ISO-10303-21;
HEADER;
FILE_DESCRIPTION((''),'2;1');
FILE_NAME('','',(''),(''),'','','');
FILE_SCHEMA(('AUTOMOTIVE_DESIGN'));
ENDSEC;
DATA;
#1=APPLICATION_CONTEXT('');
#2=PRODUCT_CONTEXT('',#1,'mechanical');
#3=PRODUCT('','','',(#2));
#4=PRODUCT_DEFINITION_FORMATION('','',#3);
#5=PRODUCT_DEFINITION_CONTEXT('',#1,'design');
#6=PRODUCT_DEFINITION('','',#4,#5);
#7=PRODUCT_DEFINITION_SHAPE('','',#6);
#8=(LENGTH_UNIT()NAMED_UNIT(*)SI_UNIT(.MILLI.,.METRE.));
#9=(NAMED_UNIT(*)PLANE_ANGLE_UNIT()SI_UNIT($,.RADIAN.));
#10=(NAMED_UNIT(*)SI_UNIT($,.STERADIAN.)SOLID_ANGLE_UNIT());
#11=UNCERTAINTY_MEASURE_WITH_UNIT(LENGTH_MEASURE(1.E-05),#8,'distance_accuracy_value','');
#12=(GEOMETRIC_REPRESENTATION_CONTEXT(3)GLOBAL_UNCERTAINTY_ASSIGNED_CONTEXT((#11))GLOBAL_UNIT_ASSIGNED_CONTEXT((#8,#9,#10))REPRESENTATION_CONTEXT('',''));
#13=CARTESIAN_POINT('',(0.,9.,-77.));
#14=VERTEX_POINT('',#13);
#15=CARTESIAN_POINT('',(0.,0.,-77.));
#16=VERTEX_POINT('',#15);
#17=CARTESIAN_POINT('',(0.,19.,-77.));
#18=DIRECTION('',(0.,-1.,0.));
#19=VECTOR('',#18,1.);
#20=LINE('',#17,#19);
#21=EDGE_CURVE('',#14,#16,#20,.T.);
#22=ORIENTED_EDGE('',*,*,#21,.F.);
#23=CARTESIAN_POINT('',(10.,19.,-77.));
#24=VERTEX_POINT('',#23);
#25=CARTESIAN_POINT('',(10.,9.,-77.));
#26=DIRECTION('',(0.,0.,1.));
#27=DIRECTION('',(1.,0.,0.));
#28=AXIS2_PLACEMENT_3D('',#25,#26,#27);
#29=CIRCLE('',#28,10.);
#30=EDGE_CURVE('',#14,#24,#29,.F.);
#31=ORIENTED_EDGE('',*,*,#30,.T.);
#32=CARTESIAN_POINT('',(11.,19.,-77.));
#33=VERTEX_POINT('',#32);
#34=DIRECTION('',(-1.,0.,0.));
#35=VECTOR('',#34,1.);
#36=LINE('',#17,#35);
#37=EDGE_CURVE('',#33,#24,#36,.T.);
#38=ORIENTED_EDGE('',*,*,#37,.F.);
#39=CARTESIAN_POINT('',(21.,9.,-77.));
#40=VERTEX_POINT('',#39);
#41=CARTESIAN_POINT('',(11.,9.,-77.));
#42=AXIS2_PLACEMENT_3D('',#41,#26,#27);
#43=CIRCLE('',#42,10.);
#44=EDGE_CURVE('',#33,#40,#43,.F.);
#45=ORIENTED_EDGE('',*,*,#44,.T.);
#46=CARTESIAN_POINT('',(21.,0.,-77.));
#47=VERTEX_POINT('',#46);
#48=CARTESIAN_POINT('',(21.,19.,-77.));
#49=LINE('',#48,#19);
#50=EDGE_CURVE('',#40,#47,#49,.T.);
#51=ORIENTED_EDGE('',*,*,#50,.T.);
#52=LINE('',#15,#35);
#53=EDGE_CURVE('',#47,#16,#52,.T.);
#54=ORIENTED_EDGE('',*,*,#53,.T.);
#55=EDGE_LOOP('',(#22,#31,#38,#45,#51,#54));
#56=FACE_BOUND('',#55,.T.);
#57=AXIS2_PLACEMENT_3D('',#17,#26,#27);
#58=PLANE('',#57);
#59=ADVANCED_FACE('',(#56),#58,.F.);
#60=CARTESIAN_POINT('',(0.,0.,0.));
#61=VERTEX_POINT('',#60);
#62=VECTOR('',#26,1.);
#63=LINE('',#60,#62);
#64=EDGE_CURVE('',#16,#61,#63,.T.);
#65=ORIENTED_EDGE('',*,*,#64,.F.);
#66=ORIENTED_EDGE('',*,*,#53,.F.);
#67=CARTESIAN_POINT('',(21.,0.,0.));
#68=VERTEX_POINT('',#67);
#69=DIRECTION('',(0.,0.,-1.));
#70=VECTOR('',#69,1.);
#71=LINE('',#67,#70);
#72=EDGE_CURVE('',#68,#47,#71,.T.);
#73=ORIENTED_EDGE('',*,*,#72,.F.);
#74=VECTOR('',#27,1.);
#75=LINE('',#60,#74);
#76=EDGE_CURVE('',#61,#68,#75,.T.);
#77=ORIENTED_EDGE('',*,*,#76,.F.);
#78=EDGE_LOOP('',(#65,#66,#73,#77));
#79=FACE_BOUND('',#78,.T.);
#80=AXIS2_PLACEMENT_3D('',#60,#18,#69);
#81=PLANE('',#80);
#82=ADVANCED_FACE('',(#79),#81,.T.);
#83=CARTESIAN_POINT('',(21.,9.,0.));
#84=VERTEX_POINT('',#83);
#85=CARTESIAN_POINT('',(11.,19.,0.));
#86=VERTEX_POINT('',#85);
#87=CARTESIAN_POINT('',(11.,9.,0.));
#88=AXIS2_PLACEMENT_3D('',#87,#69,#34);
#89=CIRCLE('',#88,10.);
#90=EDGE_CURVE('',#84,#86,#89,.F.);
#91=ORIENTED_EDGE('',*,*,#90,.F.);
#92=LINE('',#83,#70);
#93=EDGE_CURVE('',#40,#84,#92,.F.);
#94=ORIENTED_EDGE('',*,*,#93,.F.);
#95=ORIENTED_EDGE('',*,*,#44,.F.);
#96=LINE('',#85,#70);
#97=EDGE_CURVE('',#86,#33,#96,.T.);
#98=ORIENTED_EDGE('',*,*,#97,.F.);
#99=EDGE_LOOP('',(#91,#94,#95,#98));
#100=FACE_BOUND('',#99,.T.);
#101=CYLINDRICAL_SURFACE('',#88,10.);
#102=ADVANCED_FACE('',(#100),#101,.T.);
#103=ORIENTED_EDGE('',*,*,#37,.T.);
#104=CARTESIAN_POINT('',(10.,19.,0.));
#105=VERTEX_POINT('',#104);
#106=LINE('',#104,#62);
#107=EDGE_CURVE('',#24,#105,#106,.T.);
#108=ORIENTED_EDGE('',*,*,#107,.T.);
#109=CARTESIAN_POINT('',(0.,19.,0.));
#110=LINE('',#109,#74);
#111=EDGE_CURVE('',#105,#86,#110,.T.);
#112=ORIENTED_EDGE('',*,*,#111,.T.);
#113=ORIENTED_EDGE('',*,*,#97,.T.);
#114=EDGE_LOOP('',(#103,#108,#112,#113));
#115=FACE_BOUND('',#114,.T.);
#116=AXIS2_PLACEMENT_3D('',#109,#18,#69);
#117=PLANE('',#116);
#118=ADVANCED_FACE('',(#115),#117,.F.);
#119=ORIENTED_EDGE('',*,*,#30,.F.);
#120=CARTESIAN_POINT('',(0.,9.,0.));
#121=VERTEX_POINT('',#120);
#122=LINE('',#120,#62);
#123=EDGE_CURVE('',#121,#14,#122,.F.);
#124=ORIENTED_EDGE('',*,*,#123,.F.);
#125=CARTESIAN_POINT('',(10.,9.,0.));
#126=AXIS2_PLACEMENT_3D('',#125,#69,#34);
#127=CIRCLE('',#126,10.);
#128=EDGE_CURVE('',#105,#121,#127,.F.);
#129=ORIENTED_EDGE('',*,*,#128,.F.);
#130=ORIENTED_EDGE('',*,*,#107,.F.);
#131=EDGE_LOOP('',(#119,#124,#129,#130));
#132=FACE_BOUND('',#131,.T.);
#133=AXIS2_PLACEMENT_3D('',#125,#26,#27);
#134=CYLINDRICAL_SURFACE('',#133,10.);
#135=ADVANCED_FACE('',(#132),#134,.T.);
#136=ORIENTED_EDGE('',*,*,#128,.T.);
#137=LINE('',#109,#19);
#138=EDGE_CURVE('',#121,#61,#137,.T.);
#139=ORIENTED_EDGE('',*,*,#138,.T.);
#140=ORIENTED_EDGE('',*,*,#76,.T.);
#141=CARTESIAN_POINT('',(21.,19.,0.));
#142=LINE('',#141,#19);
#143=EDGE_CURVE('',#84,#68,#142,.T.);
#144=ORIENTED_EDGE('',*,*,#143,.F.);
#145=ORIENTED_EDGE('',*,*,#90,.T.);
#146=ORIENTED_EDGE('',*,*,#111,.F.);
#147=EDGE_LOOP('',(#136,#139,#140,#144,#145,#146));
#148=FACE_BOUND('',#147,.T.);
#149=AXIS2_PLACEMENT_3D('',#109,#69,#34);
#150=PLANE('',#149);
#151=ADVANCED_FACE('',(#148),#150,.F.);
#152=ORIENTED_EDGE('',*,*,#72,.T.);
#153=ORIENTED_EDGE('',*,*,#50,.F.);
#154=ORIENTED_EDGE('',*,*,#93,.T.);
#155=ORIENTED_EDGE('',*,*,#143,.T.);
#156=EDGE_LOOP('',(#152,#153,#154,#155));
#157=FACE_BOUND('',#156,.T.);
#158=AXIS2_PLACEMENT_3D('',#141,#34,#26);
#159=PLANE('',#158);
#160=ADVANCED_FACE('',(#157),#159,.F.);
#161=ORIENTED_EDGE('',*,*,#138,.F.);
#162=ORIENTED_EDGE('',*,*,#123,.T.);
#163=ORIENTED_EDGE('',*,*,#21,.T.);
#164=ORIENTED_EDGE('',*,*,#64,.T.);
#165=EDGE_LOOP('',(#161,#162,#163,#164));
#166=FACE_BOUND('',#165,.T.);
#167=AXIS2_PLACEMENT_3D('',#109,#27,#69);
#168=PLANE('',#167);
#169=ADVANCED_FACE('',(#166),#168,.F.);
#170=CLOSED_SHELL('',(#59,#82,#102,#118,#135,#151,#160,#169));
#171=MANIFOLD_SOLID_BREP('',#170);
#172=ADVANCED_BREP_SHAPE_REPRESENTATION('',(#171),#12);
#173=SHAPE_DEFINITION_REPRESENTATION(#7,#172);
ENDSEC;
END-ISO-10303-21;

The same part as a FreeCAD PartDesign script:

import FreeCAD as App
import Part
import Sketcher

V = App.Vector


def edges_at(feature, points):
    """Names of the edges that pass closest to the given points."""
    edges = feature.Shape.Edges
    near = lambda p: min(range(len(edges)), key=lambda i: edges[i].distToShape(Part.Vertex(*p))[0])
    return sorted({f"Edge{near(p) + 1}" for p in points})


def add_polygon(sketch, points):
    """Adds a closed chain of lines whose ends are joined by coincident constraints."""
    first, n = sketch.GeometryCount, len(points)
    for a, b in zip(points, points[1:] + points[:1]):
        sketch.addGeometry(Part.LineSegment(App.Vector(*a, 0), App.Vector(*b, 0)), False)
    for i in range(n):
        sketch.addConstraint(Sketcher.Constraint("Coincident", first + i, 2, first + (i + 1) % n, 1))

doc = App.newDocument("Part")
body = doc.addObject("PartDesign::Body", "Body")

sketch1 = doc.addObject("Sketcher::SketchObject", "Sketch")
body.addObject(sketch1)
sketch1.AttachmentSupport = (doc.XZ_Plane, [""])
sketch1.MapMode = "FlatFace"
add_polygon(sketch1, [(0, -77), (0, 0), (21, 0), (21, -77)])
sketch1.addConstraint([
    Sketcher.Constraint("Vertical", 0),
    Sketcher.Constraint("Horizontal", 1),
    Sketcher.Constraint("Vertical", 2),
    Sketcher.Constraint("Horizontal", 3),
    Sketcher.Constraint("Coincident", 0, 2, -1, 1),
    Sketcher.Constraint("DistanceX", 1, 1, 1, 2, 21.0),
    Sketcher.Constraint("DistanceY", 0, 1, 0, 2, 77.0),
])
pad1 = doc.addObject("PartDesign::Pad", "Pad")
body.addObject(pad1)
pad1.Profile = sketch1
pad1.Length = 19
pad1.Reversed = True
doc.recompute()

fillet = doc.addObject("PartDesign::Fillet", "Fillet")
body.addObject(fillet)
fillet.Base = (pad1, edges_at(pad1, [(21, 19, -38.5), (0, 19, -38.5)]))
fillet.Radius = 10

doc.recompute()
